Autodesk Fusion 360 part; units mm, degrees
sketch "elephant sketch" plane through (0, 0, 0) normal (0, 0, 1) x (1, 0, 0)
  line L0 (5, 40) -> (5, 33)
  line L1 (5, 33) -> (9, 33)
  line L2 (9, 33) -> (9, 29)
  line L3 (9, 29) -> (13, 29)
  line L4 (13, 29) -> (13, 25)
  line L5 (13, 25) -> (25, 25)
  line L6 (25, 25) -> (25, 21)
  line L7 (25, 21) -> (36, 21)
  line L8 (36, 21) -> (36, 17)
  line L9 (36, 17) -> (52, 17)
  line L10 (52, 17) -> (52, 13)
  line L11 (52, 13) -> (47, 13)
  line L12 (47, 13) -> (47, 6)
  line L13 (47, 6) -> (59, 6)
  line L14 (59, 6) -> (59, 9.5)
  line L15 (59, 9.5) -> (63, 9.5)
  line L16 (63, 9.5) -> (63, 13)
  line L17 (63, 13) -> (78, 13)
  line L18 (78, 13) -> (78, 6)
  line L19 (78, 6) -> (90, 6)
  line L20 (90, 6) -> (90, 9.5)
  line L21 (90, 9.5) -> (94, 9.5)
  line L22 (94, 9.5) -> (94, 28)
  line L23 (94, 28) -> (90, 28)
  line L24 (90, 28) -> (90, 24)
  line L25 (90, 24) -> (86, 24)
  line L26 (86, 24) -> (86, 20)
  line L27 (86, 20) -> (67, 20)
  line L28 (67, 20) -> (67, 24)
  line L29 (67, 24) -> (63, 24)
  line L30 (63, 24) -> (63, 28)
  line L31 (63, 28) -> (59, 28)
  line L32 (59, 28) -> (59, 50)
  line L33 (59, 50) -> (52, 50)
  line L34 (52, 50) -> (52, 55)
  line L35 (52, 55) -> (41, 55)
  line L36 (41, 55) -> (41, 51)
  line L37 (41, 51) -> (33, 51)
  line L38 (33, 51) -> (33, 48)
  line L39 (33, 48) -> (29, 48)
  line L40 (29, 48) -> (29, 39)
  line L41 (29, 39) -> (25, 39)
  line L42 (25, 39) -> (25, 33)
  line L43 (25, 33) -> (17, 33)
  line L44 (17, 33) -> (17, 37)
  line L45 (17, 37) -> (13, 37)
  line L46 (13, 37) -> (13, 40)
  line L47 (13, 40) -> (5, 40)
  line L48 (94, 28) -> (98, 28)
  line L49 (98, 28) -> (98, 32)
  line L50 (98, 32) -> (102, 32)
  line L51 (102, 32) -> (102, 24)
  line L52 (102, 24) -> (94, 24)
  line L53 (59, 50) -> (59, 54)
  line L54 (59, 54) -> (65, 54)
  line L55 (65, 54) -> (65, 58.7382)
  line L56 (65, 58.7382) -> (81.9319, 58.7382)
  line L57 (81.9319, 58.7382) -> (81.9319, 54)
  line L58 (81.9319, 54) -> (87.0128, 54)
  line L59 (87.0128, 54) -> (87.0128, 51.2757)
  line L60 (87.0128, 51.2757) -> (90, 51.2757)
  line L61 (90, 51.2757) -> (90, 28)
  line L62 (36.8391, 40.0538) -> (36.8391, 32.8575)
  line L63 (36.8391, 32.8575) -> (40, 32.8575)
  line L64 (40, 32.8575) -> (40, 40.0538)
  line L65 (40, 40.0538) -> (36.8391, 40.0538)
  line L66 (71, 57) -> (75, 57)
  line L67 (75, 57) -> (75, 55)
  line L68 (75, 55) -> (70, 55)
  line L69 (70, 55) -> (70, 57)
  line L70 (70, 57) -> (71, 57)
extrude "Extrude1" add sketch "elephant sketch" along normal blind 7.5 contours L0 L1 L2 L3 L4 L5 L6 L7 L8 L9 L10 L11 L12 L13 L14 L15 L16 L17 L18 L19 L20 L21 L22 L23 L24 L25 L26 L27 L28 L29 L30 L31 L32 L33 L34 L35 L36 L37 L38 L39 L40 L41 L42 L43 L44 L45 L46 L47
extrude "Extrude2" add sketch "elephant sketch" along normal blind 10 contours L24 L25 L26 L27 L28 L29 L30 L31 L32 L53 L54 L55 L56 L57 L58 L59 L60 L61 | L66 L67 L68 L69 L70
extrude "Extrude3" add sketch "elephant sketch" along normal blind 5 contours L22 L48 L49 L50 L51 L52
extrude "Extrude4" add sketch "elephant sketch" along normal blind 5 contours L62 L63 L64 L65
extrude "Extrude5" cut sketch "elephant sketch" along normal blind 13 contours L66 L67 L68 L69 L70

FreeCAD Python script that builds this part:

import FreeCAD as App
import Part
import Sketcher
Q = App.Units.Quantity


def add_polygon(sketch, points):
    """Adds a closed chain of lines whose ends are joined by coincident constraints."""
    first, n = sketch.GeometryCount, len(points)
    for a, b in zip(points, points[1:] + points[:1]):
        sketch.addGeometry(Part.LineSegment(App.Vector(*a, 0), App.Vector(*b, 0)), False)
    for i in range(n):
        sketch.addConstraint(Sketcher.Constraint("Coincident", first + i, 2, first + (i + 1) % n, 1))

doc = App.newDocument("Part")
body = doc.addObject("PartDesign::Body", "Body")

# Sketch on XY plane
sketch1 = body.newObject("Sketcher::SketchObject", "Sketch")
sketch1.AttachmentSupport = (doc.getObject("XY_Plane"), [""])
sketch1.MapMode = "FlatFace"
add_polygon(sketch1, [(13, 40), (5, 40), (5, 33), (9, 33), (9, 29), (13, 29), (13, 25), (25, 25), (25, 21), (36, 21), (36, 17), (52, 17), (52, 13), (47, 13), (47, 6), (59, 6), (59, 9.5), (63, 9.5), (63, 13), (78, 13), (78, 6), (90, 6), (90, 9.5), (94, 9.5), (94, 28), (90, 28), (90, 24), (86, 24), (86, 20), (67, 20), (67, 24), (63, 24), (63, 28), (59, 28), (59, 50), (52, 50), (52, 55), (41, 55), (41, 51), (33, 51), (33, 48), (29, 48), (29, 39), (25, 39), (25, 33), (17, 33), (17, 37), (13, 37)])  # lines 0-47
add_polygon(sketch1, [(36.8391, 32.8575), (36.8391, 40.0538), (40, 40.0538), (40, 32.8575)])  # lines 48-51
sketch1.addConstraint(Sketcher.Constraint("Horizontal", 0))
sketch1.addConstraint(Sketcher.Constraint("Vertical", 1))
sketch1.addConstraint(Sketcher.Constraint("Horizontal", 2))
sketch1.addConstraint(Sketcher.Constraint("Vertical", 3))
sketch1.addConstraint(Sketcher.Constraint("Horizontal", 4))
sketch1.addConstraint(Sketcher.Constraint("Vertical", 5))
sketch1.addConstraint(Sketcher.Constraint("Horizontal", 6))
sketch1.addConstraint(Sketcher.Constraint("Vertical", 7))
sketch1.addConstraint(Sketcher.Constraint("Horizontal", 8))
sketch1.addConstraint(Sketcher.Constraint("Vertical", 9))
sketch1.addConstraint(Sketcher.Constraint("Horizontal", 10))
sketch1.addConstraint(Sketcher.Constraint("Vertical", 11))
sketch1.addConstraint(Sketcher.Constraint("Horizontal", 12))
sketch1.addConstraint(Sketcher.Constraint("Vertical", 13))
sketch1.addConstraint(Sketcher.Constraint("Horizontal", 14))
sketch1.addConstraint(Sketcher.Constraint("Vertical", 15))
sketch1.addConstraint(Sketcher.Constraint("Horizontal", 16))
sketch1.addConstraint(Sketcher.Constraint("Vertical", 17))
sketch1.addConstraint(Sketcher.Constraint("Horizontal", 18))
sketch1.addConstraint(Sketcher.Constraint("Vertical", 19))
sketch1.addConstraint(Sketcher.Constraint("Horizontal", 20))
sketch1.addConstraint(Sketcher.Constraint("Vertical", 21))
sketch1.addConstraint(Sketcher.Constraint("Horizontal", 22))
sketch1.addConstraint(Sketcher.Constraint("Vertical", 23))
sketch1.addConstraint(Sketcher.Constraint("Horizontal", 24))
sketch1.addConstraint(Sketcher.Constraint("Vertical", 25))
sketch1.addConstraint(Sketcher.Constraint("Horizontal", 26))
sketch1.addConstraint(Sketcher.Constraint("Vertical", 27))
sketch1.addConstraint(Sketcher.Constraint("Horizontal", 28))
sketch1.addConstraint(Sketcher.Constraint("Vertical", 29))
sketch1.addConstraint(Sketcher.Constraint("Horizontal", 30))
sketch1.addConstraint(Sketcher.Constraint("Vertical", 31))
sketch1.addConstraint(Sketcher.Constraint("Horizontal", 32))
sketch1.addConstraint(Sketcher.Constraint("Vertical", 33))
sketch1.addConstraint(Sketcher.Constraint("Horizontal", 34))
sketch1.addConstraint(Sketcher.Constraint("Vertical", 35))
sketch1.addConstraint(Sketcher.Constraint("Horizontal", 36))
sketch1.addConstraint(Sketcher.Constraint("Vertical", 37))
sketch1.addConstraint(Sketcher.Constraint("Horizontal", 38))
sketch1.addConstraint(Sketcher.Constraint("Vertical", 39))
sketch1.addConstraint(Sketcher.Constraint("Horizontal", 40))
sketch1.addConstraint(Sketcher.Constraint("Vertical", 41))
sketch1.addConstraint(Sketcher.Constraint("Horizontal", 42))
sketch1.addConstraint(Sketcher.Constraint("Vertical", 43))
sketch1.addConstraint(Sketcher.Constraint("Horizontal", 44))
sketch1.addConstraint(Sketcher.Constraint("Vertical", 45))
sketch1.addConstraint(Sketcher.Constraint("Horizontal", 46))
sketch1.addConstraint(Sketcher.Constraint("Vertical", 47))
sketch1.addConstraint(Sketcher.Constraint("Vertical", 48))
sketch1.addConstraint(Sketcher.Constraint("Horizontal", 49))
sketch1.addConstraint(Sketcher.Constraint("Vertical", 50))
sketch1.addConstraint(Sketcher.Constraint("Horizontal", 51))
sketch1.addConstraint(Sketcher.Constraint("Horizontal", 12, 2, 17, 2))
sketch1.addConstraint(Sketcher.Constraint("Horizontal", 14, 2, 19, 2))
sketch1.addConstraint(Sketcher.Constraint("Horizontal", 16, 2, 21, 2))
sketch1.addConstraint(Sketcher.Constraint("Horizontal", 26, 2, 29, 2))
sketch1.addConstraint(Sketcher.Constraint("Horizontal", 24, 2, 31, 2))
sketch1.addConstraint(Sketcher.Constraint("Horizontal", 2, 2, 43, 2))
sketch1.addConstraint(Sketcher.Constraint("Vertical", 21, 2, 24, 2))
sketch1.addConstraint(Sketcher.Constraint("Vertical", 17, 2, 30, 2))
sketch1.addConstraint(Sketcher.Constraint("Vertical", 15, 2, 32, 2))
sketch1.addConstraint(Sketcher.Constraint("Vertical", 11, 2, 34, 2))
sketch1.addConstraint(Sketcher.Constraint("Vertical", 7, 2, 42, 2))
sketch1.addConstraint(Sketcher.Constraint("Vertical", 5, 2, 46, 2))
sketch1.addConstraint(Sketcher.Constraint("Equal", 2, 4))
sketch1.addConstraint(Sketcher.Constraint("Equal", 6, 14))
sketch1.addConstraint(Sketcher.Constraint("Equal", 4, 16))
sketch1.addConstraint(Sketcher.Constraint("Equal", 14, 20))
sketch1.addConstraint(Sketcher.Constraint("Equal", 16, 22))
sketch1.addConstraint(Sketcher.Constraint("Equal", 24, 26))
sketch1.addConstraint(Sketcher.Constraint("Equal", 26, 30))
sketch1.addConstraint(Sketcher.Constraint("Equal", 8, 36))
sketch1.addConstraint(Sketcher.Constraint("Equal", 0, 38))
sketch1.addConstraint(Sketcher.Constraint("Equal", 32, 40))
sketch1.addConstraint(Sketcher.Constraint("Equal", 40, 42))
sketch1.addConstraint(Sketcher.Constraint("Equal", 38, 44))
sketch1.addConstraint(Sketcher.Constraint("Equal", 42, 46))
sketch1.addConstraint(Sketcher.Constraint("Equal", 34, 1))
sketch1.addConstraint(Sketcher.Constraint("Equal", 46, 3))
sketch1.addConstraint(Sketcher.Constraint("Equal", 3, 5))
sketch1.addConstraint(Sketcher.Constraint("Equal", 5, 7))
sketch1.addConstraint(Sketcher.Constraint("Equal", 7, 9))
sketch1.addConstraint(Sketcher.Constraint("Equal", 9, 11))
sketch1.addConstraint(Sketcher.Constraint("Equal", 1, 13))
sketch1.addConstraint(Sketcher.Constraint("Equal", 15, 17))
sketch1.addConstraint(Sketcher.Constraint("Equal", 11, 25))
sketch1.addConstraint(Sketcher.Constraint("Equal", 25, 27))
sketch1.addConstraint(Sketcher.Constraint("Equal", 12, 35))
sketch1.addConstraint(Sketcher.Constraint("Equal", 31, 37))
sketch1.addConstraint(Sketcher.Constraint("Equal", 37, 45))
sketch1.addConstraint(Sketcher.Constraint("Equal", 39, 47))
sketch1.addConstraint(Sketcher.Constraint("DistanceX", 0, 2, 0, 1, Q("8 mm")))
sketch1.addConstraint(Sketcher.Constraint("DistanceX", 8, 1, 8, 2, Q("11 mm")))
sketch1.addConstraint(Sketcher.Constraint("DistanceX", 12, 2, 12, 1, Q("5 mm")))
sketch1.addConstraint(Sketcher.Constraint("DistanceX", 18, 1, 18, 2, Q("15 mm")))
sketch1.addConstraint(Sketcher.Constraint("DistanceY", 33, 1, 33, 2, Q("22 mm")))
sketch1.addConstraint(Sketcher.Constraint("DistanceY", 41, 2, 41, 1, Q("9 mm")))
sketch1.addConstraint(Sketcher.Constraint("DistanceY", 43, 2, 43, 1, Q("6 mm")))
sketch1.addConstraint(Sketcher.Constraint("DistanceX", -1, 1, 0, 2, Q("5 mm")))
sketch1.addConstraint(Sketcher.Constraint("DistanceY", -1, 1, 0, 2, Q("40 mm")))
sketch1.addConstraint(Sketcher.Constraint("DistanceX", -1, 1, 49, 2, Q("40 mm")))
sketch1.addConstraint(Sketcher.Constraint("DistanceX", 49, 1, 49, 2, Q("3.161 mm")))
sketch1.addConstraint(Sketcher.Constraint("DistanceY", 48, 1, 48, 2, Q("7.1963 mm")))
sketch1.addConstraint(Sketcher.Constraint("DistanceY", -1, 1, 48, 2, Q("40.0538 mm")))
pad1 = body.newObject("PartDesign::Pad", "Pad")
pad1.Profile = sketch1
pad1.Length = 7.5

# Sketch on XY plane
sketch2 = body.newObject("Sketcher::SketchObject", "Sketch001")
sketch2.AttachmentSupport = (doc.getObject("XY_Plane"), [""])
sketch2.MapMode = "FlatFace"
add_polygon(sketch2, [(59, 54), (59, 28), (63, 28), (63, 24), (67, 24), (67, 20), (86, 20), (86, 24), (90, 24), (90, 51.2757), (87.0128, 51.2757), (87.0128, 54), (81.9319, 54), (81.9319, 58.7382), (65, 58.7382), (65, 54)])  # lines 0-15
sketch2.addConstraint(Sketcher.Constraint("Vertical", 0))
sketch2.addConstraint(Sketcher.Constraint("Horizontal", 1))
sketch2.addConstraint(Sketcher.Constraint("Vertical", 2))
sketch2.addConstraint(Sketcher.Constraint("Horizontal", 3))
sketch2.addConstraint(Sketcher.Constraint("Vertical", 4))
sketch2.addConstraint(Sketcher.Constraint("Horizontal", 5))
sketch2.addConstraint(Sketcher.Constraint("Vertical", 6))
sketch2.addConstraint(Sketcher.Constraint("Horizontal", 7))
sketch2.addConstraint(Sketcher.Constraint("Vertical", 8))
sketch2.addConstraint(Sketcher.Constraint("Horizontal", 9))
sketch2.addConstraint(Sketcher.Constraint("Vertical", 10))
sketch2.addConstraint(Sketcher.Constraint("Horizontal", 11))
sketch2.addConstraint(Sketcher.Constraint("Vertical", 12))
sketch2.addConstraint(Sketcher.Constraint("Horizontal", 13))
sketch2.addConstraint(Sketcher.Constraint("Vertical", 14))
sketch2.addConstraint(Sketcher.Constraint("Horizontal", 15))
sketch2.addConstraint(Sketcher.Constraint("Horizontal", 3, 2, 6, 2))
sketch2.addConstraint(Sketcher.Constraint("Horizontal", 11, 2, 14, 2))
sketch2.addConstraint(Sketcher.Constraint("Equal", 1, 3))
sketch2.addConstraint(Sketcher.Constraint("Equal", 3, 7))
sketch2.addConstraint(Sketcher.Constraint("Equal", 7, 2))
sketch2.addConstraint(Sketcher.Constraint("Equal", 2, 4))
sketch2.addConstraint(Sketcher.Constraint("DistanceX", 1, 1, 1, 2, Q("4 mm")))
sketch2.addConstraint(Sketcher.Constraint("DistanceX", 5, 1, 5, 2, Q("19 mm")))
sketch2.addConstraint(Sketcher.Constraint("DistanceX", 15, 2, 15, 1, Q("6 mm")))
sketch2.addConstraint(Sketcher.Constraint("DistanceY", 0, 2, 0, 1, Q("26 mm")))
sketch2.addConstraint(Sketcher.Constraint("DistanceX", -1, 1, 0, 2, Q("59 mm")))
sketch2.addConstraint(Sketcher.Constraint("DistanceY", -1, 1, 0, 2, Q("28 mm")))
sketch2.addConstraint(Sketcher.Constraint("DistanceX", 11, 2, 11, 1, Q("5.081 mm")))
sketch2.addConstraint(Sketcher.Constraint("DistanceX", 13, 2, 13, 1, Q("16.932 mm")))
sketch2.addConstraint(Sketcher.Constraint("DistanceY", 8, 1, 8, 2, Q("27.2757 mm")))
sketch2.addConstraint(Sketcher.Constraint("DistanceY", 12, 1, 12, 2, Q("4.7382 mm")))
pad2 = body.newObject("PartDesign::Pad", "Pad001")
pad2.Profile = sketch2
pad2.Length = 10

# Sketch on XY plane
sketch3 = body.newObject("Sketcher::SketchObject", "Sketch002")
sketch3.AttachmentSupport = (doc.getObject("XY_Plane"), [""])
sketch3.MapMode = "FlatFace"
add_polygon(sketch3, [(94, 28), (94, 24), (102, 24), (102, 32), (98, 32), (98, 28)])  # lines 0-5
sketch3.addConstraint(Sketcher.Constraint("Vertical", 0))
sketch3.addConstraint(Sketcher.Constraint("Horizontal", 1))
sketch3.addConstraint(Sketcher.Constraint("Vertical", 2))
sketch3.addConstraint(Sketcher.Constraint("Horizontal", 3))
sketch3.addConstraint(Sketcher.Constraint("Vertical", 4))
sketch3.addConstraint(Sketcher.Constraint("Horizontal", 5))
sketch3.addConstraint(Sketcher.Constraint("Equal", 3, 5))
sketch3.addConstraint(Sketcher.Constraint("Equal", 5, 0))
sketch3.addConstraint(Sketcher.Constraint("Equal", 1, 2))
sketch3.addConstraint(Sketcher.Constraint("DistanceX", 1, 1, 1, 2, Q("8 mm")))
sketch3.addConstraint(Sketcher.Constraint("DistanceX", -1, 1, 0, 2, Q("94 mm")))
sketch3.addConstraint(Sketcher.Constraint("DistanceY", -1, 1, 0, 2, Q("24 mm")))
pad3 = body.newObject("PartDesign::Pad", "Pad002")
pad3.Profile = sketch3
pad3.Length = 5

# Sketch on XY plane
sketch4 = body.newObject("Sketcher::SketchObject", "Sketch003")
sketch4.AttachmentSupport = (doc.getObject("XY_Plane"), [""])
sketch4.MapMode = "FlatFace"
add_polygon(sketch4, [(40, 40.0538), (36.8391, 40.0538), (36.8391, 32.8575), (40, 32.8575)])  # lines 0-3
sketch4.addConstraint(Sketcher.Constraint("Horizontal", 0))
sketch4.addConstraint(Sketcher.Constraint("Vertical", 1))
sketch4.addConstraint(Sketcher.Constraint("Horizontal", 2))
sketch4.addConstraint(Sketcher.Constraint("Vertical", 3))
sketch4.addConstraint(Sketcher.Constraint("DistanceX", -1, 1, 2, 2, Q("40 mm")))
sketch4.addConstraint(Sketcher.Constraint("DistanceX", 0, 2, 0, 1, Q("3.161 mm")))
sketch4.addConstraint(Sketcher.Constraint("DistanceY", 1, 2, 1, 1, Q("7.1963 mm")))
sketch4.addConstraint(Sketcher.Constraint("DistanceY", -1, 1, 0, 2, Q("40.0538 mm")))
pad4 = body.newObject("PartDesign::Pad", "Pad003")
pad4.Profile = sketch4
pad4.Length = 5

# Sketch on XY plane
sketch5 = body.newObject("Sketcher::SketchObject", "Sketch004")
sketch5.AttachmentSupport = (doc.getObject("XY_Plane"), [""])
sketch5.MapMode = "FlatFace"
add_polygon(sketch5, [(75, 57), (70, 57), (70, 55), (75, 55)])  # lines 0-3
sketch5.addConstraint(Sketcher.Constraint("Horizontal", 0))
sketch5.addConstraint(Sketcher.Constraint("Vertical", 1))
sketch5.addConstraint(Sketcher.Constraint("Horizontal", 2))
sketch5.addConstraint(Sketcher.Constraint("Vertical", 3))
sketch5.addConstraint(Sketcher.Constraint("DistanceX", 0, 2, 0, 1, Q("5 mm")))
sketch5.addConstraint(Sketcher.Constraint("DistanceY", 1, 2, 1, 1, Q("2 mm")))
sketch5.addConstraint(Sketcher.Constraint("DistanceX", -1, 1, 0, 2, Q("70 mm")))
sketch5.addConstraint(Sketcher.Constraint("DistanceY", -1, 1, 0, 2, Q("57 mm")))
pocket1 = body.newObject("PartDesign::Pocket", "Pocket")
pocket1.Profile = sketch5
pocket1.Length = 13
pocket1.Reversed = True

doc.recompute()
